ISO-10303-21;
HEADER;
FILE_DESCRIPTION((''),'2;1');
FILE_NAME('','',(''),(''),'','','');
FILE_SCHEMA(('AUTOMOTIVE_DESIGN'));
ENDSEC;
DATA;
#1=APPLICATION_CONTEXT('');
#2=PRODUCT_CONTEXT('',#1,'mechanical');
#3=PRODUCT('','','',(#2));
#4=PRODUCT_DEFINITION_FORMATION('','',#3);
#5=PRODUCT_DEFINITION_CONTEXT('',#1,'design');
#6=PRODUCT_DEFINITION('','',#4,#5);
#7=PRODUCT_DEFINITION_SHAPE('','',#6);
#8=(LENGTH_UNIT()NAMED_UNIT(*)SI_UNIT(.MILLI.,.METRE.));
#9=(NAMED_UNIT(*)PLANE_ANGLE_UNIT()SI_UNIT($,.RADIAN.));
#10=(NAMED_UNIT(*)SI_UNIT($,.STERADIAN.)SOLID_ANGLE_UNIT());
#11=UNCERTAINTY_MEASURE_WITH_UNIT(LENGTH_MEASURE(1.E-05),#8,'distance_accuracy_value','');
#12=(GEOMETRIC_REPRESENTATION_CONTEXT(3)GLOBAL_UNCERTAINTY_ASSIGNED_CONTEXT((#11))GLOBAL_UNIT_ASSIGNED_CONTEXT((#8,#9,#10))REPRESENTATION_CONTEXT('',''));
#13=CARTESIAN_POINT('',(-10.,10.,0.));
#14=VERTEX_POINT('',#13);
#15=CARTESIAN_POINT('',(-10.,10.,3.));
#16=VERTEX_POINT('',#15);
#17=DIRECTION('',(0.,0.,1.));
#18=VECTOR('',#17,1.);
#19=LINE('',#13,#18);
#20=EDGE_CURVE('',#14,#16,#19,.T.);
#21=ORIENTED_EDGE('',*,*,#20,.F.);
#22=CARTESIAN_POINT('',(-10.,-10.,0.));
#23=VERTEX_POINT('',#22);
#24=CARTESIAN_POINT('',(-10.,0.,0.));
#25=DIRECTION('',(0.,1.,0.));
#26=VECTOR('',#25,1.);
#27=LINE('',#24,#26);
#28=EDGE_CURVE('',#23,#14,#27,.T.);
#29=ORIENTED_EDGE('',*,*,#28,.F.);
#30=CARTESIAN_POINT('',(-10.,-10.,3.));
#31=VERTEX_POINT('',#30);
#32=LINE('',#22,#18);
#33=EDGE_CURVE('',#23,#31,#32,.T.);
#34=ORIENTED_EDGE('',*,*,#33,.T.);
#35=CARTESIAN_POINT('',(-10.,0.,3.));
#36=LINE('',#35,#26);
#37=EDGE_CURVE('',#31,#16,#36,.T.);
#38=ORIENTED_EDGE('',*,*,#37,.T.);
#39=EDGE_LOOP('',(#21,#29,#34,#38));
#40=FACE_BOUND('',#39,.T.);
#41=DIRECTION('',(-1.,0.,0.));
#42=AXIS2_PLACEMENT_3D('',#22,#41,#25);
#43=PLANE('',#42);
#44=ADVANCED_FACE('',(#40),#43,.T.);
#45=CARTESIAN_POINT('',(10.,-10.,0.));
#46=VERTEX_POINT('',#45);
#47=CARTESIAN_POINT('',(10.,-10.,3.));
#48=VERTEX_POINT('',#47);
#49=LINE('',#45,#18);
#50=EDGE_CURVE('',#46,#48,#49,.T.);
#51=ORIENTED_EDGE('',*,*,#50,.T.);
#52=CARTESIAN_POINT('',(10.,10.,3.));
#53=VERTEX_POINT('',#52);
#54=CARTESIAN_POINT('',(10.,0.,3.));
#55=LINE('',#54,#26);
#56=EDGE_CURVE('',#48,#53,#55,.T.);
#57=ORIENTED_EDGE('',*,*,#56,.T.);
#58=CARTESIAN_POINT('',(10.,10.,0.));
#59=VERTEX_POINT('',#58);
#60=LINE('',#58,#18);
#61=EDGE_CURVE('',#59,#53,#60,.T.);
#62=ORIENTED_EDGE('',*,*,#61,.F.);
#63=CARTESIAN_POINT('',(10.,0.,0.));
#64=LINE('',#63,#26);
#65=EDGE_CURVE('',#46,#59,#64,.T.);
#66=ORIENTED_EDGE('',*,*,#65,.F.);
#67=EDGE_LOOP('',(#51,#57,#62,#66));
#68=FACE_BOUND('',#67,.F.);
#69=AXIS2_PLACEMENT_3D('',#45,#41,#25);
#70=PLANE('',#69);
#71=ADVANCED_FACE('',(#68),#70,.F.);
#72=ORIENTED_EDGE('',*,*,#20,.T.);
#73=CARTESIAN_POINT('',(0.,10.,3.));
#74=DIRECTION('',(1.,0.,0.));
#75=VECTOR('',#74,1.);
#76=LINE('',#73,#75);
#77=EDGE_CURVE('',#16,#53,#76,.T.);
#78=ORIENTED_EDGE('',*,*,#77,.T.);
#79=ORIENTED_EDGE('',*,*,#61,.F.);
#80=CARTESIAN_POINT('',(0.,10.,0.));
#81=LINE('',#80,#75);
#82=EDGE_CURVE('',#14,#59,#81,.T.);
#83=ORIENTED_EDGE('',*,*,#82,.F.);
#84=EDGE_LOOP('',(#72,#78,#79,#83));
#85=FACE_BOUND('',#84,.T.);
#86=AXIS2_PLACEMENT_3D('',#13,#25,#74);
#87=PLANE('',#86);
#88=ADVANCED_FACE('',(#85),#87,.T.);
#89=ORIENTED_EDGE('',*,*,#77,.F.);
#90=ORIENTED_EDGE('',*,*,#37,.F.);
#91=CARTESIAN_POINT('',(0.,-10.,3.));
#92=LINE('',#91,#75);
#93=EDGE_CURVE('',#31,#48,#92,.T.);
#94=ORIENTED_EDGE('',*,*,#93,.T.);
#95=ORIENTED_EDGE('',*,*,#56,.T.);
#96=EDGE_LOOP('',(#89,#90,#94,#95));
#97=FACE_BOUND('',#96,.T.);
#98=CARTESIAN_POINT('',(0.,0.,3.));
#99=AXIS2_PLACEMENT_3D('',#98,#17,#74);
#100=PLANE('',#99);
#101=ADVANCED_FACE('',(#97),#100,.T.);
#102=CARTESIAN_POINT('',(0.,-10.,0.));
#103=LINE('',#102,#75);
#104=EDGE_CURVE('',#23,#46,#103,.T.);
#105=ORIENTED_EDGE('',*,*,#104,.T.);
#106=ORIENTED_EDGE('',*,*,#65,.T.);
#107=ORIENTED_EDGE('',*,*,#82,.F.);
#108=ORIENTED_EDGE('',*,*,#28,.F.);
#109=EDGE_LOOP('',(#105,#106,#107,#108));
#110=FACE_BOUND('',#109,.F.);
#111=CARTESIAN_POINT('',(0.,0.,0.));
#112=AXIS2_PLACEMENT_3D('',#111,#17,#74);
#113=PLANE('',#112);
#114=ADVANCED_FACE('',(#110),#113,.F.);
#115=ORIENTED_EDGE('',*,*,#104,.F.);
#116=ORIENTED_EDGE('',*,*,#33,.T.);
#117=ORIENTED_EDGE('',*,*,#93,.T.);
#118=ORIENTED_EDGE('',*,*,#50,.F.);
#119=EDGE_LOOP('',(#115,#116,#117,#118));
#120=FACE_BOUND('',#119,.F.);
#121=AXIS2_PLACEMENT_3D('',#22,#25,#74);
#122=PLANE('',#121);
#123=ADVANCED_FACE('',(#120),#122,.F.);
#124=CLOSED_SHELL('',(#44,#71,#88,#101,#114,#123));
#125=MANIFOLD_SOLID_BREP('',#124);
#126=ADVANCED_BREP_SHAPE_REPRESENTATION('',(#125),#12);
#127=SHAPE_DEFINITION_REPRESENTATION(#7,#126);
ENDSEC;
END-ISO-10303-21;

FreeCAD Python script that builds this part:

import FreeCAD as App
import Part
import Sketcher
Q = App.Units.Quantity

doc = App.newDocument("Part")
body = doc.addObject("PartDesign::Body", "Body")

# Sketch on XY plane
sketch1 = body.newObject("Sketcher::SketchObject", "Sketch")
sketch1.AttachmentSupport = (doc.getObject("XY_Plane"), [""])
sketch1.MapMode = "FlatFace"
sketch1.addGeometry([
    Part.LineSegment(App.Vector(-10, 10, 0), App.Vector(-10, -10, 0)),
    Part.LineSegment(App.Vector(-10, -10, 0), App.Vector(10, -10, 0)),
    Part.LineSegment(App.Vector(10, -10, 0), App.Vector(10, 10, 0)),
    Part.LineSegment(App.Vector(10, 10, 0), App.Vector(-10, 10, 0)),
], False)
sketch1.addConstraint([
    Sketcher.Constraint("Coincident", 0, 2, 1, 1),
    Sketcher.Constraint("Coincident", 1, 2, 2, 1),
    Sketcher.Constraint("Coincident", 2, 2, 3, 1),
    Sketcher.Constraint("Coincident", 3, 2, 0, 1),
    Sketcher.Constraint("Vertical", 0),
    Sketcher.Constraint("Horizontal", 1),
    Sketcher.Constraint("Vertical", 2),
    Sketcher.Constraint("Horizontal", 3),
    Sketcher.Constraint("Symmetric", 0, 2, 2, 2, -1, 1),
    Sketcher.Constraint("Equal", 3, 0),
    Sketcher.Constraint("DistanceX", 1, 1, 1, 2, Q("20 mm")),
])
pad1 = body.newObject("PartDesign::Pad", "Pad")
pad1.Profile = sketch1
pad1.Length = 3

doc.recompute()
